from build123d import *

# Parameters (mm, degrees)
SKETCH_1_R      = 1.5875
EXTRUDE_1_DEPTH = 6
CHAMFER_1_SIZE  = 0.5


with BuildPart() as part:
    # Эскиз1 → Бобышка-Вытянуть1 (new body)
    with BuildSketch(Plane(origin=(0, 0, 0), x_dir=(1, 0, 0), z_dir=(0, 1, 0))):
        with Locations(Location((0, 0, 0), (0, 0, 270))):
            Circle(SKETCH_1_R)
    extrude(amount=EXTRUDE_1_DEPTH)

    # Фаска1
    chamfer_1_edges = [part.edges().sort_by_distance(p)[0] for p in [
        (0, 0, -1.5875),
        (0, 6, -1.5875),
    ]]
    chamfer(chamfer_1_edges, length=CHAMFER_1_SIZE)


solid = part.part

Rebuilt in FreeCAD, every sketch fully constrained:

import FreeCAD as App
import Part
import Sketcher


def edges_at(feature, points):
    """Names of the edges that pass closest to the given points."""
    edges = feature.Shape.Edges
    near = lambda p: min(range(len(edges)), key=lambda i: edges[i].distToShape(Part.Vertex(*p))[0])
    return sorted({f"Edge{near(p) + 1}" for p in points})

doc = App.newDocument("Part")
body = doc.addObject("PartDesign::Body", "Body")

# Sketch on XZ plane
sketch1 = body.newObject("Sketcher::SketchObject", "Sketch")
sketch1.AttachmentSupport = (doc.getObject("XZ_Plane"), [""])
sketch1.MapMode = "FlatFace"
sketch1.addGeometry(Part.Circle(App.Vector(0, 0, 0), App.Vector(0, 0, 1), 1.6), False)
sketch1.addConstraint([
    Sketcher.Constraint("Coincident", 0, 3, -1, 1),
    Sketcher.Constraint("Diameter", 0, 3.175),
])
pad1 = body.newObject("PartDesign::Pad", "Pad")
pad1.Profile = sketch1
pad1.Length = 6
pad1.Reversed = True
doc.recompute()

chamfer = body.newObject("PartDesign::Chamfer", "Chamfer")
chamfer.Base = (pad1, edges_at(pad1, [(0, 0, -1.587), (0, 6, -1.587)]))
chamfer.Size = 0.5

doc.recompute()
